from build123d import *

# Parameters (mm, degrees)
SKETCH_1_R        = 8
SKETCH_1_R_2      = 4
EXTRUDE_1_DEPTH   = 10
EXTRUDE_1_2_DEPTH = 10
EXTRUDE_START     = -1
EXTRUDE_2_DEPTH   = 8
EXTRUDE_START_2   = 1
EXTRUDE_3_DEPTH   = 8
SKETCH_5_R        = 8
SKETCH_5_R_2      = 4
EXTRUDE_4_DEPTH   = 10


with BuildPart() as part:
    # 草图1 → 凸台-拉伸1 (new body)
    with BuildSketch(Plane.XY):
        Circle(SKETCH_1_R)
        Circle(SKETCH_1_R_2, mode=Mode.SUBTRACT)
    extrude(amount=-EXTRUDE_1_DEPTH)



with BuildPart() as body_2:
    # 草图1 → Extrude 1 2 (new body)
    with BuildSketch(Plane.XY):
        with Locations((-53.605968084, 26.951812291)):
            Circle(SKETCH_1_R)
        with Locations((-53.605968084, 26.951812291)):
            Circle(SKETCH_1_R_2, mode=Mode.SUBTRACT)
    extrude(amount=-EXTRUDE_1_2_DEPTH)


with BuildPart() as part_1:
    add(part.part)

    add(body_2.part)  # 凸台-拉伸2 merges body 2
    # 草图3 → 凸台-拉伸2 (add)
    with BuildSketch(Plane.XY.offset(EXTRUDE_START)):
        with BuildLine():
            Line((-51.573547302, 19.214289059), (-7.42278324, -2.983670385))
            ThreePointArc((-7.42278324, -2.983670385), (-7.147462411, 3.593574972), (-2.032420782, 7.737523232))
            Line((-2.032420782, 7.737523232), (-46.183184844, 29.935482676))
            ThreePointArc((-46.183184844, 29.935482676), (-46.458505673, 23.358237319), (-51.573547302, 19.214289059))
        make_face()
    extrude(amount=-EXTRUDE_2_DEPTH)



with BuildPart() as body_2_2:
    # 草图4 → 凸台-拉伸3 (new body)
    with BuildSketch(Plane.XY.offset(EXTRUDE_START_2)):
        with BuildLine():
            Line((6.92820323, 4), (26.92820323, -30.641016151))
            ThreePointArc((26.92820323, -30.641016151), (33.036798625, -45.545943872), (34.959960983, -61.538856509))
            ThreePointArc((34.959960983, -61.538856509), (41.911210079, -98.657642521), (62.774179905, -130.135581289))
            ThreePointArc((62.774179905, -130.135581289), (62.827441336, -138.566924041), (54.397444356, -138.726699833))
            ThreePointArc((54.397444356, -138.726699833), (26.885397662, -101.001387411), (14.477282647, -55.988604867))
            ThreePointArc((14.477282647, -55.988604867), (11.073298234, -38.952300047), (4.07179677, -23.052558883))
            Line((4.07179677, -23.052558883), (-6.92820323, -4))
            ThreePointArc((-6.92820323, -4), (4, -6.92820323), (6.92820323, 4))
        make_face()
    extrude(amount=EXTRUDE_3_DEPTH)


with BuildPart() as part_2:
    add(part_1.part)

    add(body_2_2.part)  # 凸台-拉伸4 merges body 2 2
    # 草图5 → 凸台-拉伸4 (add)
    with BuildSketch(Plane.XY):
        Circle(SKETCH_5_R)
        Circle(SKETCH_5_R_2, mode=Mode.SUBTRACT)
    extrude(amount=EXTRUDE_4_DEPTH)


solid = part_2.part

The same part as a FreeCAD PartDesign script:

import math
import FreeCAD as App
import Part
import Sketcher
from FreeCAD import Vector
Q = App.Units.Quantity

doc = App.newDocument("Part")
body = doc.addObject("PartDesign::Body", "Body")

# Sketch on XY plane
sketch1 = body.newObject("Sketcher::SketchObject", "Sketch")
sketch1.AttachmentSupport = (doc.getObject("XY_Plane"), [""])
sketch1.MapMode = "FlatFace"
sketch1.addGeometry(Part.Circle(Vector(0, 0, 0), Vector(0, 0, 1), 8), False)
sketch1.addGeometry(Part.Circle(Vector(0, 0, 0), Vector(0, 0, 1), 4), False)
sketch1.addConstraint(Sketcher.Constraint("Coincident", 0, 3, -1, 1))
sketch1.addConstraint(Sketcher.Constraint("Coincident", 1, 3, -1, 1))
sketch1.addConstraint(Sketcher.Constraint("Diameter", 0, Q("16 mm")))
sketch1.addConstraint(Sketcher.Constraint("Diameter", 1, Q("8 mm")))
pad1 = body.newObject("PartDesign::Pad", "Pad")
pad1.Profile = sketch1
pad1.Length = 10
pad1.Reversed = True
body2 = doc.addObject("PartDesign::Body", "Body001")

# Sketch on XY plane
sketch2 = body2.newObject("Sketcher::SketchObject", "Sketch001")
sketch2.AttachmentSupport = (doc.getObject("XY_Plane001"), [""])
sketch2.MapMode = "FlatFace"
sketch2.addGeometry(Part.Circle(Vector(-53.6, 27, 0), Vector(0, 0, 1), 8), False)
sketch2.addGeometry(Part.Circle(Vector(-53.6, 27, 0), Vector(0, 0, 1), 4), False)
sketch2.addConstraint(Sketcher.Constraint("Coincident", 1, 3, 0, 3))
sketch2.addConstraint(Sketcher.Constraint("Diameter", 0, Q("16 mm")))
sketch2.addConstraint(Sketcher.Constraint("Diameter", 1, Q("8 mm")))
sketch2.addConstraint(Sketcher.Constraint("DistanceX", 0, 3, -1, 1, Q("53.605968 mm")))
sketch2.addConstraint(Sketcher.Constraint("DistanceY", -1, 1, 0, 3, Q("26.951812 mm")))
pad2 = body2.newObject("PartDesign::Pad", "Pad001")
pad2.Profile = sketch2
pad2.Length = 10
pad2.Reversed = True
body.AllowCompound = True
doc.recompute()

boolean = body.newObject("PartDesign::Boolean", "Boolean")
boolean.Type = "Fuse"
boolean.addObjects([body2])

# Sketch on XY plane
sketch3 = body.newObject("Sketcher::SketchObject", "Sketch002")
sketch3.AttachmentSupport = (doc.getObject("XY_Plane"), [""])
sketch3.MapMode = "FlatFace"
sketch3.AttachmentOffset = App.Placement(Vector(0, 0, -1), App.Rotation())
sketch3.addGeometry(Part.LineSegment(Vector(-52, 19, 0), Vector(-7, -3, 0)), False)
sketch3.addGeometry(Part.ArcOfCircle(Part.Circle(Vector(0, 0, 0), Vector(0, 0, 1), 8), math.radians(105), math.radians(202)), False)
sketch3.addGeometry(Part.LineSegment(Vector(-2, 8, 0), Vector(-46, 30, 0)), False)
sketch3.addGeometry(Part.ArcOfCircle(Part.Circle(Vector(-54, 27, 0), Vector(0, 0, 1), 8), math.radians(-75), math.radians(22)), False)
sketch3.addConstraint(Sketcher.Constraint("Coincident", 0, 2, 1, 2))
sketch3.addConstraint(Sketcher.Constraint("Coincident", 1, 1, 2, 1))
sketch3.addConstraint(Sketcher.Constraint("Coincident", 2, 2, 3, 2))
sketch3.addConstraint(Sketcher.Constraint("Coincident", 3, 1, 0, 1))
sketch3.addConstraint(Sketcher.Constraint("Coincident", 1, 3, -1, 1))
sketch3.addConstraint(Sketcher.Constraint("Equal", 1, 3))
sketch3.addConstraint(Sketcher.Constraint("Parallel", 0, 2))
sketch3.addConstraint(Sketcher.Constraint("Equal", 0, 2))
sketch3.addConstraint(Sketcher.Constraint("Radius", 1, Q("8 mm")))
sketch3.addConstraint(Sketcher.Constraint("DistanceX", 2, 2, 0, 2, Q("38.760402 mm")))
sketch3.addConstraint(Sketcher.Constraint("DistanceX", 3, 3, -1, 1, Q("53.605968 mm")))
sketch3.addConstraint(Sketcher.Constraint("DistanceX", 1, 1, -1, 1, Q("2.032421 mm")))
sketch3.addConstraint(Sketcher.Constraint("DistanceY", -1, 1, 3, 1, Q("19.214289 mm")))
pad3 = body.newObject("PartDesign::Pad", "Pad002")
pad3.Profile = sketch3
pad3.Length = 8
pad3.Reversed = True
body3 = doc.addObject("PartDesign::Body", "Body002")

# Sketch on XY plane
sketch4 = body3.newObject("Sketcher::SketchObject", "Sketch003")
sketch4.AttachmentSupport = (doc.getObject("XY_Plane002"), [""])
sketch4.MapMode = "FlatFace"
sketch4.AttachmentOffset = App.Placement(Vector(0, 0, 1), App.Rotation())
sketch4.addGeometry(Part.LineSegment(Vector(27, -31, 0), Vector(7, 4, 0)), False)
sketch4.addGeometry(Part.ArcOfCircle(Part.Circle(Vector(0, 0, 0), Vector(0, 0, 1), 8), math.radians(-150), math.radians(30)), False)
sketch4.addGeometry(Part.LineSegment(Vector(-7, -4, 0), Vector(4, -23, 0)), False)
sketch4.addGeometry(Part.ArcOfCircle(Part.Circle(Vector(-65, -63, 0), Vector(0, 0, 1), 80), math.radians(5), math.radians(30)), False)
sketch4.addGeometry(Part.ArcOfCircle(Part.Circle(Vector(144, -45, 0), Vector(0, 0, 1), 130), math.radians(-175), math.radians(-134)), False)
sketch4.addGeometry(Part.ArcOfCircle(Part.Circle(Vector(59, -134, 0), Vector(0, 0, 1), 6), math.radians(-134), math.radians(45)), False)
sketch4.addGeometry(Part.ArcOfCircle(Part.Circle(Vector(130, -63, 0), Vector(0, 0, 1), 95), math.radians(179), math.radians(225)), False)
sketch4.addGeometry(Part.ArcOfCircle(Part.Circle(Vector(-25, -61, 0), Vector(0, 0, 1), 60), math.radians(-1), math.radians(30)), False)
sketch4.addConstraint(Sketcher.Constraint("Tangent", 0, 2, 1, 2))
sketch4.addConstraint(Sketcher.Constraint("Tangent", 1, 1, 2, 1))
sketch4.addConstraint(Sketcher.Constraint("Tangent", 2, 2, 3, 2))
sketch4.addConstraint(Sketcher.Constraint("Tangent", 3, 1, 4, 1))
sketch4.addConstraint(Sketcher.Constraint("Tangent", 4, 2, 5, 1))
sketch4.addConstraint(Sketcher.Constraint("Tangent", 5, 2, 6, 2))
sketch4.addConstraint(Sketcher.Constraint("Tangent", 6, 1, 7, 1))
sketch4.addConstraint(Sketcher.Constraint("Tangent", 7, 2, 0, 1))
sketch4.addConstraint(Sketcher.Constraint("Coincident", 1, 3, -1, 1))
sketch4.addConstraint(Sketcher.Constraint("Parallel", 0, 2))
sketch4.addConstraint(Sketcher.Constraint("Radius", 1, Q("8 mm")))
sketch4.addConstraint(Sketcher.Constraint("Radius", 3, Q("80 mm")))
sketch4.addConstraint(Sketcher.Constraint("Radius", 4, Q("130 mm")))
sketch4.addConstraint(Sketcher.Constraint("Radius", 5, Q("6 mm")))
sketch4.addConstraint(Sketcher.Constraint("Radius", 6, Q("95 mm")))
sketch4.addConstraint(Sketcher.Constraint("Radius", 7, Q("60 mm")))
sketch4.addConstraint(Sketcher.Constraint("Angle", 0, Q("120 deg")))
sketch4.addConstraint(Sketcher.Constraint("Distance", 0, Q("40 mm")))
sketch4.addConstraint(Sketcher.Constraint("Distance", 2, Q("22 mm")))
sketch4.addConstraint(Sketcher.Constraint("DistanceX", -1, 1, 4, 3, Q("143.9695 mm")))
sketch4.addConstraint(Sketcher.Constraint("DistanceY", 4, 2, -1, 1, Q("138.7267 mm")))
pad4 = body3.newObject("PartDesign::Pad", "Pad003")
pad4.Profile = sketch4
pad4.Length = 8
body.AllowCompound = True
doc.recompute()

boolean2 = body.newObject("PartDesign::Boolean", "Boolean001")
boolean2.Type = "Fuse"
boolean2.addObjects([body3])

# Sketch on XY plane
sketch5 = body.newObject("Sketcher::SketchObject", "Sketch004")
sketch5.AttachmentSupport = (doc.getObject("XY_Plane"), [""])
sketch5.MapMode = "FlatFace"
sketch5.addGeometry(Part.Circle(Vector(0, 0, 0), Vector(0, 0, 1), 8), False)
sketch5.addGeometry(Part.Circle(Vector(0, 0, 0), Vector(0, 0, 1), 4), False)
sketch5.addConstraint(Sketcher.Constraint("Coincident", 0, 3, -1, 1))
sketch5.addConstraint(Sketcher.Constraint("Coincident", 1, 3, -1, 1))
sketch5.addConstraint(Sketcher.Constraint("Diameter", 0, Q("16 mm")))
sketch5.addConstraint(Sketcher.Constraint("Diameter", 1, Q("8 mm")))
pad5 = body.newObject("PartDesign::Pad", "Pad004")
pad5.Profile = sketch5
pad5.Length = 10

doc.recompute()
